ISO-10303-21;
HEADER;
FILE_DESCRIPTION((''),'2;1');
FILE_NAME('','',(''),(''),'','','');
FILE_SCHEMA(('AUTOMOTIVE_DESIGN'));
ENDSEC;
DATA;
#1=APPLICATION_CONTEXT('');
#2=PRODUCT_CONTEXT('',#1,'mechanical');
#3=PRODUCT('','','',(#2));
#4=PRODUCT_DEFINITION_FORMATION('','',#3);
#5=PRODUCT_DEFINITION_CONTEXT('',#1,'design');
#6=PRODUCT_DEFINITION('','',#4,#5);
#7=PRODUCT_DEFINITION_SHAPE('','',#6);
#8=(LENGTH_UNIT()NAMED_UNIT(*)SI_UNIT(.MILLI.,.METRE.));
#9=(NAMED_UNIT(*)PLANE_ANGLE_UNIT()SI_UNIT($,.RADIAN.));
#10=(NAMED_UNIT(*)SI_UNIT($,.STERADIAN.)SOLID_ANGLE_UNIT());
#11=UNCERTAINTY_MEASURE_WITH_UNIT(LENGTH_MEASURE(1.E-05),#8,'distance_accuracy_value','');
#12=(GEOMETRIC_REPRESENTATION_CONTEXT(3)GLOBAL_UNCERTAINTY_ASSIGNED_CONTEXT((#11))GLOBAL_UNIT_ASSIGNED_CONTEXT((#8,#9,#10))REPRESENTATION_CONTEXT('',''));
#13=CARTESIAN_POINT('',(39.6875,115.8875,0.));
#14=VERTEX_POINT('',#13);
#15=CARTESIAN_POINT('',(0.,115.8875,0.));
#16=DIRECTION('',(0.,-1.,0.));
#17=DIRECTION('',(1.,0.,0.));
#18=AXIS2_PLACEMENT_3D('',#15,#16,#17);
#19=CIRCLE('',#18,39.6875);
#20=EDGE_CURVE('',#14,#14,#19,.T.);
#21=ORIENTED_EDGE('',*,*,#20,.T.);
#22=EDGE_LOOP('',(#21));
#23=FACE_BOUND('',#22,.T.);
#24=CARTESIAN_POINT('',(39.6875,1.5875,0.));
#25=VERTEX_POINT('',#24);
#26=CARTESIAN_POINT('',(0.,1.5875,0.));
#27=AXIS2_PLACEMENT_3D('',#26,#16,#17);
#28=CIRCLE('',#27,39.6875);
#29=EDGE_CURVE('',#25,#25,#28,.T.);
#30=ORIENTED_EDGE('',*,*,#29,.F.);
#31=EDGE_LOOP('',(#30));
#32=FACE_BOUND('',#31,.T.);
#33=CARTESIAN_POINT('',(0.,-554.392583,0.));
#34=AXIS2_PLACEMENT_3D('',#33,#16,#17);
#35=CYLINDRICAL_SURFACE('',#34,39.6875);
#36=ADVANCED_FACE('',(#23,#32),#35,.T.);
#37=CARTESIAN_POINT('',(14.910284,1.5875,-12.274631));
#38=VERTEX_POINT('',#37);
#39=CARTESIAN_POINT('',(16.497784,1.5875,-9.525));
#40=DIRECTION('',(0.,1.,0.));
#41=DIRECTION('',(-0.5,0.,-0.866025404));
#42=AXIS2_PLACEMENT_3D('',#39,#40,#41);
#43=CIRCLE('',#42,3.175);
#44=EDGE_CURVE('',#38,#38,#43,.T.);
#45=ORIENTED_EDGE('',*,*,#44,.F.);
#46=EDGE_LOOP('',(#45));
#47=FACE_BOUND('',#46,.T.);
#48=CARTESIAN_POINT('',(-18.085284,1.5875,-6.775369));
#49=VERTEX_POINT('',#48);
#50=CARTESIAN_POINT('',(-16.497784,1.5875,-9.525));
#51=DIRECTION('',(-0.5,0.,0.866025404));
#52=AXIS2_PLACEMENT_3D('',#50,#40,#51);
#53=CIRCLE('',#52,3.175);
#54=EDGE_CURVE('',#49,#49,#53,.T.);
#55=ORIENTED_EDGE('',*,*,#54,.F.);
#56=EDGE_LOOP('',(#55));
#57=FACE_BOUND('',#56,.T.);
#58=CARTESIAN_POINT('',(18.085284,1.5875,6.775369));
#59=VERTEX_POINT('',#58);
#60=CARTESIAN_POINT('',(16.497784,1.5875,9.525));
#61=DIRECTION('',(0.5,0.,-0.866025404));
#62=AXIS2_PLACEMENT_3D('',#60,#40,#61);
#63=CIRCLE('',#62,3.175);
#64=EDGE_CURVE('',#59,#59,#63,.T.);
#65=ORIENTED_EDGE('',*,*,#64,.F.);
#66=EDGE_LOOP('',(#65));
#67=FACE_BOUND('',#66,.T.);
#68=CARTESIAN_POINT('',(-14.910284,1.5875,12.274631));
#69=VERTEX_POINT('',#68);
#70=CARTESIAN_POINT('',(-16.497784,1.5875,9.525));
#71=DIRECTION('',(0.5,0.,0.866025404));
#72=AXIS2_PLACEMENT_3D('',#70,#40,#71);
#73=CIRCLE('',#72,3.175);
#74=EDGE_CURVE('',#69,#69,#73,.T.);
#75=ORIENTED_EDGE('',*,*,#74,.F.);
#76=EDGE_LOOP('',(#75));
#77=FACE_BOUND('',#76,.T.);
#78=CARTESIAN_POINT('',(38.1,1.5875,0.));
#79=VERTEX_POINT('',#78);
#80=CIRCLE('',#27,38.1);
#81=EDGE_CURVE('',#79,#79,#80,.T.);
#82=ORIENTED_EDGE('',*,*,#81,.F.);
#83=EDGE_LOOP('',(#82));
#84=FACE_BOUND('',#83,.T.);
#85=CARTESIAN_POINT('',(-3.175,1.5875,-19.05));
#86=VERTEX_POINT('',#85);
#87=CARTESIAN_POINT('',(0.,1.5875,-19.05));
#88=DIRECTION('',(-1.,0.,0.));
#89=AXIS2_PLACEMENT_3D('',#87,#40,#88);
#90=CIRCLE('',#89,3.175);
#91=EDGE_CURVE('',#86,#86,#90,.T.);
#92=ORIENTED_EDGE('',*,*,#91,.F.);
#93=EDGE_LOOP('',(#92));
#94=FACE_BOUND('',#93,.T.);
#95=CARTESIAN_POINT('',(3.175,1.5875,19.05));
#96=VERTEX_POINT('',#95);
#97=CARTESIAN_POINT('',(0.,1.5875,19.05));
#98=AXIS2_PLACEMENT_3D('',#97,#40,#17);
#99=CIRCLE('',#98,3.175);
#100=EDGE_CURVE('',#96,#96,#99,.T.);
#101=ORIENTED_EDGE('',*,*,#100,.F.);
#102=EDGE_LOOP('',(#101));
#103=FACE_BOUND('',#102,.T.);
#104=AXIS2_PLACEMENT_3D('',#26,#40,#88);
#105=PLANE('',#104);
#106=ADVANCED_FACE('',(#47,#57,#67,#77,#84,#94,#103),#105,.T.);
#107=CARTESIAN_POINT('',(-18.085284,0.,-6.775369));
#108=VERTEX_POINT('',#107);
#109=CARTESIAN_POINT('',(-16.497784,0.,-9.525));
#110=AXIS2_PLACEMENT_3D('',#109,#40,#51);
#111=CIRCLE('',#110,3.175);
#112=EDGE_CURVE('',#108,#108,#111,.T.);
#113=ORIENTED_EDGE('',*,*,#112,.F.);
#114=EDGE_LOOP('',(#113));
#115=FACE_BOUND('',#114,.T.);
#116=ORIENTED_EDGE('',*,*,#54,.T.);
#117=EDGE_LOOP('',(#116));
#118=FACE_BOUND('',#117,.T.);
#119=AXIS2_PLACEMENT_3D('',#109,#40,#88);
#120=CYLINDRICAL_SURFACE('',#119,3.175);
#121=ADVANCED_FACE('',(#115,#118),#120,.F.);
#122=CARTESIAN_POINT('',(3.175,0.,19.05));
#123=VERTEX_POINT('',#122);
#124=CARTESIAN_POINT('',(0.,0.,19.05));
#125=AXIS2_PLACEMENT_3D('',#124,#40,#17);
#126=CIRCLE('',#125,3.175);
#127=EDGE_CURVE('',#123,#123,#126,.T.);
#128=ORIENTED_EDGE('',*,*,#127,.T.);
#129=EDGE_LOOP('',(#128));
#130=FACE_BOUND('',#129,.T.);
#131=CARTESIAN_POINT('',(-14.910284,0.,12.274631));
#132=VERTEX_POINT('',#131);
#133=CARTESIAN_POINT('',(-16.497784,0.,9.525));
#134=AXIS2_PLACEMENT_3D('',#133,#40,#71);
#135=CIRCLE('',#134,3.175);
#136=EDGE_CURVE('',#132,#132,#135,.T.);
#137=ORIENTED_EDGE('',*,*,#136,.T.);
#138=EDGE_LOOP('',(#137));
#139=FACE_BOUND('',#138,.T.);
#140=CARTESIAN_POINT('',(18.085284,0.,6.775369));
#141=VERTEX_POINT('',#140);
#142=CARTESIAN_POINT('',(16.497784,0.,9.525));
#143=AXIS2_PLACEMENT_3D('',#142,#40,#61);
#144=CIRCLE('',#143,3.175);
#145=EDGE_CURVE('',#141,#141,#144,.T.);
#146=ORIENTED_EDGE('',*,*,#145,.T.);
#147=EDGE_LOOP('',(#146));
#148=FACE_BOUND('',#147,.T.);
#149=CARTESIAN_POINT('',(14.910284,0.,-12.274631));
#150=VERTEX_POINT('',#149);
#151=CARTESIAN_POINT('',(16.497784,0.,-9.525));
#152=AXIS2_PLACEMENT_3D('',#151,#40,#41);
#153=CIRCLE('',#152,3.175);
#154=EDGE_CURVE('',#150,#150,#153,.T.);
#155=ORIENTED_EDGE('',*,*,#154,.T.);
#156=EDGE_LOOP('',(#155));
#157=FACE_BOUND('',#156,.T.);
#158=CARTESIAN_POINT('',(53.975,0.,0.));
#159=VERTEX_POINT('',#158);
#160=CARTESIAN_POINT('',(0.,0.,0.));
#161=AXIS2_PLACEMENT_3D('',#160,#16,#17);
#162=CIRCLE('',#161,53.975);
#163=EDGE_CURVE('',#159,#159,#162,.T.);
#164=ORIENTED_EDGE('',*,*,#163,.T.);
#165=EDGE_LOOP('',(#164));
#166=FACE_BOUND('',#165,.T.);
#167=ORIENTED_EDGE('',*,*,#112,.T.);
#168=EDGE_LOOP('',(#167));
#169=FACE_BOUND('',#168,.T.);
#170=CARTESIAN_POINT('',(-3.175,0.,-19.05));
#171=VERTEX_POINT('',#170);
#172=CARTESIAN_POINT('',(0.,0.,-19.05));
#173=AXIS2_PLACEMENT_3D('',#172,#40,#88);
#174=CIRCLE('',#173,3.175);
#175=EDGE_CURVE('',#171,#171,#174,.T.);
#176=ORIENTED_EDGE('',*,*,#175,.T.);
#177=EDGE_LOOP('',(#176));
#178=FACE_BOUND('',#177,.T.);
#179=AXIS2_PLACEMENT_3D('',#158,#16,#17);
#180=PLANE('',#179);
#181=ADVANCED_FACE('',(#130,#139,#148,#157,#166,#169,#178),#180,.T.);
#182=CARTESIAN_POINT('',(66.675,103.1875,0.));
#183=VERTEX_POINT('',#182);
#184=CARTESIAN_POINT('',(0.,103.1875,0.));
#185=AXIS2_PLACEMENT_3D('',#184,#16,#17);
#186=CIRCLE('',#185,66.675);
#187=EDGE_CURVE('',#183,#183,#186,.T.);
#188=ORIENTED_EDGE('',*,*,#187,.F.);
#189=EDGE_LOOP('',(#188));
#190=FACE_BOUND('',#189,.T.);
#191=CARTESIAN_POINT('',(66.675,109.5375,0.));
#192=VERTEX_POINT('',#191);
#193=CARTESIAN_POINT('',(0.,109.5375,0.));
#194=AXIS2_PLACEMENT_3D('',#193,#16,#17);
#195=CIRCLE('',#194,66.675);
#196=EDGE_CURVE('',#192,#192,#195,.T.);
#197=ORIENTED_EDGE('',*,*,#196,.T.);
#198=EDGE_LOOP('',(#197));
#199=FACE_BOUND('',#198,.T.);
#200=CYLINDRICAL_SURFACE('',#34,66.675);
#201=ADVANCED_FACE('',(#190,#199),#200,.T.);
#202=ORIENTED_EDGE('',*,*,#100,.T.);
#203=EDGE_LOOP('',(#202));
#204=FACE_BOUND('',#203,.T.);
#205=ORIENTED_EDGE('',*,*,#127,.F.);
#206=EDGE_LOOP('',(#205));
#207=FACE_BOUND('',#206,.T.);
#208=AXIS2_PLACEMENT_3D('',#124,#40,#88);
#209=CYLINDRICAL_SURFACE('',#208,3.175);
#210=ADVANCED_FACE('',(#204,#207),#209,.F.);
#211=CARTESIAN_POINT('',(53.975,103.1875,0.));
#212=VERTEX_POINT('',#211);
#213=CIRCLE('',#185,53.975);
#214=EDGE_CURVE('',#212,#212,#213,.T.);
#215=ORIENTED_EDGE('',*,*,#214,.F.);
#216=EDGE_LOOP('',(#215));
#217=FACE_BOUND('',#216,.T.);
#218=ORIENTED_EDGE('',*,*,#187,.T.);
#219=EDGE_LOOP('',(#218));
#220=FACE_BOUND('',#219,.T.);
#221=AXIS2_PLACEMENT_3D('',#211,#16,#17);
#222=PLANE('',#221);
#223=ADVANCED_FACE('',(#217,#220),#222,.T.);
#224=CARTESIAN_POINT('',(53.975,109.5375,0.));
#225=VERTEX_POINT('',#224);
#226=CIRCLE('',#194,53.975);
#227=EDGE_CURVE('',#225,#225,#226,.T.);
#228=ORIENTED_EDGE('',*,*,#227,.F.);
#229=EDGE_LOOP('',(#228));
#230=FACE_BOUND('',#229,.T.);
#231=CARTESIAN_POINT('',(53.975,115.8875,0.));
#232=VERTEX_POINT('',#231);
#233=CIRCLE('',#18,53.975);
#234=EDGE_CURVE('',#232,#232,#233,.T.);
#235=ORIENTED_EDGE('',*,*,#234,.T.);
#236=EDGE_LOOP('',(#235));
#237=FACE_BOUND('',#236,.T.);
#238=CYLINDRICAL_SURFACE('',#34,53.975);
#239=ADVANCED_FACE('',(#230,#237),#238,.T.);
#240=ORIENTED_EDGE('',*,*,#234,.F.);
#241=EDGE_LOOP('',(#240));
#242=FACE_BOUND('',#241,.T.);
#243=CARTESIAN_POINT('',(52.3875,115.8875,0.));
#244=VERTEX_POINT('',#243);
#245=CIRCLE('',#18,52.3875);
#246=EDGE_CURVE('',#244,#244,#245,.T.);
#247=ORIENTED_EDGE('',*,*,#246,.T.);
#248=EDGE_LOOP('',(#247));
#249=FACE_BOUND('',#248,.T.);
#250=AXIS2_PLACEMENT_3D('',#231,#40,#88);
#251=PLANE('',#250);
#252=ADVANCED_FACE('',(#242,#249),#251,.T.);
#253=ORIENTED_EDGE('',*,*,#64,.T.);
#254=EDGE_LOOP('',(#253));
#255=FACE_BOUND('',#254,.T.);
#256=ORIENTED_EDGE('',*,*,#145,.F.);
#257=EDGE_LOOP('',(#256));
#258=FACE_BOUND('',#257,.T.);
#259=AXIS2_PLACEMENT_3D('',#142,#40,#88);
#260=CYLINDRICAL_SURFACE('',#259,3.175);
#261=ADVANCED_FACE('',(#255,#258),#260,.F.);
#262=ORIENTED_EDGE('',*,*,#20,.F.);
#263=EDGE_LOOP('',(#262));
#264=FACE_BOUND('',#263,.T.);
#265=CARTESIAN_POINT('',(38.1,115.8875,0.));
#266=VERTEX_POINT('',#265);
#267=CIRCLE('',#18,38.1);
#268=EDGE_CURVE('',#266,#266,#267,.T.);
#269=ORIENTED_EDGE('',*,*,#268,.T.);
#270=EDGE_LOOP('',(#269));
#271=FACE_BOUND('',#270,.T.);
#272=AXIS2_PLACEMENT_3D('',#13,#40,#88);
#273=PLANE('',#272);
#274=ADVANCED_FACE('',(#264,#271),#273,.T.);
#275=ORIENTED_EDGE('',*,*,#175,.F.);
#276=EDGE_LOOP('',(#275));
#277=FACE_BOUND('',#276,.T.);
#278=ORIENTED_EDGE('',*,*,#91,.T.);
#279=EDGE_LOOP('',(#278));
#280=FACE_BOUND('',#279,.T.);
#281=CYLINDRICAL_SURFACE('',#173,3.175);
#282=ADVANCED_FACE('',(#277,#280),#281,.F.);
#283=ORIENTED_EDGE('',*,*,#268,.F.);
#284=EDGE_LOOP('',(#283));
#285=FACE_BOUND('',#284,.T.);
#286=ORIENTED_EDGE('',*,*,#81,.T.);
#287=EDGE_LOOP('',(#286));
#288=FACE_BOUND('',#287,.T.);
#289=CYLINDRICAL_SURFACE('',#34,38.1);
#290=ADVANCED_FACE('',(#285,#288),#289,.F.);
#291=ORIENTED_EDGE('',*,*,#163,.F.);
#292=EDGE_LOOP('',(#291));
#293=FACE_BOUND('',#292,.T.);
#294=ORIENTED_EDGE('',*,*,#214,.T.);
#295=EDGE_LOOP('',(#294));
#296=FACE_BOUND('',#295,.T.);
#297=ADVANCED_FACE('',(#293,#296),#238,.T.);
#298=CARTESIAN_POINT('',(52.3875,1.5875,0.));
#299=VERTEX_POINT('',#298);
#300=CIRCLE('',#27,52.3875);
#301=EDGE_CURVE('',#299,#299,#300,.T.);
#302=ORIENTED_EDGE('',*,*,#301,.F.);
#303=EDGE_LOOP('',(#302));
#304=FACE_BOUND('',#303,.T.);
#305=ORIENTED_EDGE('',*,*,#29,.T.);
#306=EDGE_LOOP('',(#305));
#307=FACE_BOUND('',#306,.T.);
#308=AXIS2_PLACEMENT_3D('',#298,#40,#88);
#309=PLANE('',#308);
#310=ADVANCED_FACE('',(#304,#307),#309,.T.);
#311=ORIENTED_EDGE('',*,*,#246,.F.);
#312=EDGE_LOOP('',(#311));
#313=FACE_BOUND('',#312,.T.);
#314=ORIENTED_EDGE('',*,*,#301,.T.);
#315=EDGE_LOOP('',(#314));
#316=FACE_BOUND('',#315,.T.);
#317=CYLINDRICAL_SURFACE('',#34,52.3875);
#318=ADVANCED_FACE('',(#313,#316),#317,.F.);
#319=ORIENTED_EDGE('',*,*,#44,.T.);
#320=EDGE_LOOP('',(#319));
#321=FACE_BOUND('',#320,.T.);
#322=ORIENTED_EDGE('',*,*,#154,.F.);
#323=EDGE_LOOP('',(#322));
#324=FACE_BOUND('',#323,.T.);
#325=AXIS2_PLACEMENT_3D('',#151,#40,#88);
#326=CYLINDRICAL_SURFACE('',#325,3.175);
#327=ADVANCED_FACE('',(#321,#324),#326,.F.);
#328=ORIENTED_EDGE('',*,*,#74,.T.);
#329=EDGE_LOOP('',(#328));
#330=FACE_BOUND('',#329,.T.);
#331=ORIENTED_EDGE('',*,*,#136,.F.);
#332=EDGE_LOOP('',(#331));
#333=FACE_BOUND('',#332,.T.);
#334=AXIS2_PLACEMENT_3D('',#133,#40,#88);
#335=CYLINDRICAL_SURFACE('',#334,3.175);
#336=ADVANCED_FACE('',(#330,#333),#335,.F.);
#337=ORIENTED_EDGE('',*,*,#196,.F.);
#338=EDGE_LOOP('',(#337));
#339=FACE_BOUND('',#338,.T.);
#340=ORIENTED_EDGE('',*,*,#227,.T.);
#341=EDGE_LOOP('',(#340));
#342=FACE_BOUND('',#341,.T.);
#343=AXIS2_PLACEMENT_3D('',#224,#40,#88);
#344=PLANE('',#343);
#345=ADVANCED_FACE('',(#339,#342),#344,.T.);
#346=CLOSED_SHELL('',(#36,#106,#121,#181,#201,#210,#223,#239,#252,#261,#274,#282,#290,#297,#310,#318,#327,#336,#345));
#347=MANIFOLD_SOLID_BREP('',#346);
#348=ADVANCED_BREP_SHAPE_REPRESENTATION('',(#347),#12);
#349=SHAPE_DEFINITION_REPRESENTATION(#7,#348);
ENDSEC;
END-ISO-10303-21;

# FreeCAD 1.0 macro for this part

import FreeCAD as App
import Part
import Sketcher
from FreeCAD import Vector
Q = App.Units.Quantity


def add_polygon(sketch, points):
    """Adds a closed chain of lines whose ends are joined by coincident constraints."""
    first, n = sketch.GeometryCount, len(points)
    for a, b in zip(points, points[1:] + points[:1]):
        sketch.addGeometry(Part.LineSegment(App.Vector(*a, 0), App.Vector(*b, 0)), False)
    for i in range(n):
        sketch.addConstraint(Sketcher.Constraint("Coincident", first + i, 2, first + (i + 1) % n, 1))

doc = App.newDocument("Part")
params = doc.addObject("Spreadsheet::Sheet", "Params")
for row, (alias, value) in enumerate([
    ("sketch1_width", "0.5 in"),
    ("sketch1_width2", "1.5 in"),
    ("sketch1_height", "4.5 in"),
    ("sketch1_width3", "2.125 in"),
    ("revolution_angle", "360 deg"),
    ("sketch2_diameter", "0.25 in"),
], start=1):
    params.set(f"A{row}", alias)
    params.set(f"B{row}", "=" + value)
    params.setAlias(f"B{row}", alias)

body = doc.addObject("PartDesign::Body", "Body")

sketch1 = body.newObject("Sketcher::SketchObject", "Sketch")
sketch1.AttachmentSupport = (doc.getObject("XY_Plane"), [""])
sketch1.MapMode = "FlatFace"
add_polygon(sketch1, [(0, 0), (53.975, 0), (53.975, 103.1875), (66.675, 103.1875), (66.675, 109.5375), (53.975, 109.5375), (53.975, 115.8875), (52.3875, 115.8875), (52.3875, 1.5875), (39.6875, 1.5875), (39.6875, 115.8875), (38.1, 115.8875), (38.1, 1.5875), (0, 1.5875)])
sketch1.addConstraint(Sketcher.Constraint("Horizontal", 0))
sketch1.addConstraint(Sketcher.Constraint("Vertical", 1))
sketch1.addConstraint(Sketcher.Constraint("Horizontal", 2))
sketch1.addConstraint(Sketcher.Constraint("Vertical", 3))
sketch1.addConstraint(Sketcher.Constraint("Horizontal", 4))
sketch1.addConstraint(Sketcher.Constraint("Vertical", 5))
sketch1.addConstraint(Sketcher.Constraint("Horizontal", 6))
sketch1.addConstraint(Sketcher.Constraint("Vertical", 7))
sketch1.addConstraint(Sketcher.Constraint("Horizontal", 8))
sketch1.addConstraint(Sketcher.Constraint("Vertical", 9))
sketch1.addConstraint(Sketcher.Constraint("Horizontal", 10))
sketch1.addConstraint(Sketcher.Constraint("Vertical", 11))
sketch1.addConstraint(Sketcher.Constraint("Horizontal", 12))
sketch1.addConstraint(Sketcher.Constraint("Vertical", 13))
sketch1.addConstraint(Sketcher.Constraint("Coincident", 13, 2, -1, 1))
sketch1.addConstraint(Sketcher.Constraint("Horizontal", 6, 2, 9, 2))
sketch1.addConstraint(Sketcher.Constraint("Horizontal", 8, 2, 11, 2))
sketch1.addConstraint(Sketcher.Constraint("Vertical", 1, 2, 4, 2))
sketch1.addConstraint(Sketcher.Constraint("Equal", 4, 8))
sketch1.addConstraint(Sketcher.Constraint("Equal", 6, 10))
sketch1.addConstraint(Sketcher.Constraint("Equal", 3, 5))
sketch1.addConstraint(Sketcher.Constraint("Equal", 10, 13))
sketch1.addConstraint(Sketcher.Constraint("DistanceX", 2, 1, 2, 2, Q("0.5 in")))
sketch1.addConstraint(Sketcher.Constraint("DistanceX", 12, 2, 12, 1, Q("1.5 in")))
sketch1.addConstraint(Sketcher.Constraint("DistanceY", 7, 2, 7, 1, Q("4.5 in")))
sketch1.addConstraint(Sketcher.Constraint("DistanceY", 7, 2, 1, 2, Q("4 in")))
sketch1.addConstraint(Sketcher.Constraint("DistanceX", 0, 1, 0, 2, Q("2.125 in")))
sketch1.setExpression("Constraints[36]", "Params.sketch1_width")
sketch1.setExpression("Constraints[37]", "Params.sketch1_width2")
sketch1.setExpression("Constraints[38]", "Params.sketch1_height")
sketch1.setExpression("Constraints[40]", "Params.sketch1_width3")
revolution = body.newObject("PartDesign::Revolution", "Revolution")
revolution.Profile = sketch1
revolution.ReferenceAxis = (sketch1, ["V_Axis"])
revolution.setExpression("Angle", "Params.revolution_angle")

sketch2 = body.newObject("Sketcher::SketchObject", "Sketch001")
sketch2.AttachmentSupport = (doc.getObject("XZ_Plane"), [""])
sketch2.MapMode = "FlatFace"
sketch2.AttachmentOffset = App.Placement(Vector(0, 0, -0.0625 * 25.4), App.Rotation())
sketch2.addGeometry(Part.Circle(Vector(0, -19.05, 0), Vector(0, 0, 1), 3.175), False)
sketch2.addConstraint(Sketcher.Constraint("PointOnObject", 0, 3, -2))
sketch2.addConstraint(Sketcher.Constraint("Diameter", 0, Q("0.25 in")))
sketch2.addConstraint(Sketcher.Constraint("DistanceY", 0, 3, -1, 1, Q("0.75 in")))
sketch2.setExpression("Constraints[1]", "Params.sketch2_diameter")
pocket1 = body.newObject("PartDesign::Pocket", "Pocket")
pocket1.Profile = sketch2
pocket1.Type = "ThroughAll"
pocket1.Reversed = True
doc.recompute()

polarpattern = body.newObject("PartDesign::PolarPattern", "PolarPattern")
polarpattern.Originals = [pocket1]
polarpattern.Axis = (doc.getObject("Y_Axis"), [""])
polarpattern.Angle = 360
polarpattern.Occurrences = 6
body.Tip = polarpattern

doc.recompute()
